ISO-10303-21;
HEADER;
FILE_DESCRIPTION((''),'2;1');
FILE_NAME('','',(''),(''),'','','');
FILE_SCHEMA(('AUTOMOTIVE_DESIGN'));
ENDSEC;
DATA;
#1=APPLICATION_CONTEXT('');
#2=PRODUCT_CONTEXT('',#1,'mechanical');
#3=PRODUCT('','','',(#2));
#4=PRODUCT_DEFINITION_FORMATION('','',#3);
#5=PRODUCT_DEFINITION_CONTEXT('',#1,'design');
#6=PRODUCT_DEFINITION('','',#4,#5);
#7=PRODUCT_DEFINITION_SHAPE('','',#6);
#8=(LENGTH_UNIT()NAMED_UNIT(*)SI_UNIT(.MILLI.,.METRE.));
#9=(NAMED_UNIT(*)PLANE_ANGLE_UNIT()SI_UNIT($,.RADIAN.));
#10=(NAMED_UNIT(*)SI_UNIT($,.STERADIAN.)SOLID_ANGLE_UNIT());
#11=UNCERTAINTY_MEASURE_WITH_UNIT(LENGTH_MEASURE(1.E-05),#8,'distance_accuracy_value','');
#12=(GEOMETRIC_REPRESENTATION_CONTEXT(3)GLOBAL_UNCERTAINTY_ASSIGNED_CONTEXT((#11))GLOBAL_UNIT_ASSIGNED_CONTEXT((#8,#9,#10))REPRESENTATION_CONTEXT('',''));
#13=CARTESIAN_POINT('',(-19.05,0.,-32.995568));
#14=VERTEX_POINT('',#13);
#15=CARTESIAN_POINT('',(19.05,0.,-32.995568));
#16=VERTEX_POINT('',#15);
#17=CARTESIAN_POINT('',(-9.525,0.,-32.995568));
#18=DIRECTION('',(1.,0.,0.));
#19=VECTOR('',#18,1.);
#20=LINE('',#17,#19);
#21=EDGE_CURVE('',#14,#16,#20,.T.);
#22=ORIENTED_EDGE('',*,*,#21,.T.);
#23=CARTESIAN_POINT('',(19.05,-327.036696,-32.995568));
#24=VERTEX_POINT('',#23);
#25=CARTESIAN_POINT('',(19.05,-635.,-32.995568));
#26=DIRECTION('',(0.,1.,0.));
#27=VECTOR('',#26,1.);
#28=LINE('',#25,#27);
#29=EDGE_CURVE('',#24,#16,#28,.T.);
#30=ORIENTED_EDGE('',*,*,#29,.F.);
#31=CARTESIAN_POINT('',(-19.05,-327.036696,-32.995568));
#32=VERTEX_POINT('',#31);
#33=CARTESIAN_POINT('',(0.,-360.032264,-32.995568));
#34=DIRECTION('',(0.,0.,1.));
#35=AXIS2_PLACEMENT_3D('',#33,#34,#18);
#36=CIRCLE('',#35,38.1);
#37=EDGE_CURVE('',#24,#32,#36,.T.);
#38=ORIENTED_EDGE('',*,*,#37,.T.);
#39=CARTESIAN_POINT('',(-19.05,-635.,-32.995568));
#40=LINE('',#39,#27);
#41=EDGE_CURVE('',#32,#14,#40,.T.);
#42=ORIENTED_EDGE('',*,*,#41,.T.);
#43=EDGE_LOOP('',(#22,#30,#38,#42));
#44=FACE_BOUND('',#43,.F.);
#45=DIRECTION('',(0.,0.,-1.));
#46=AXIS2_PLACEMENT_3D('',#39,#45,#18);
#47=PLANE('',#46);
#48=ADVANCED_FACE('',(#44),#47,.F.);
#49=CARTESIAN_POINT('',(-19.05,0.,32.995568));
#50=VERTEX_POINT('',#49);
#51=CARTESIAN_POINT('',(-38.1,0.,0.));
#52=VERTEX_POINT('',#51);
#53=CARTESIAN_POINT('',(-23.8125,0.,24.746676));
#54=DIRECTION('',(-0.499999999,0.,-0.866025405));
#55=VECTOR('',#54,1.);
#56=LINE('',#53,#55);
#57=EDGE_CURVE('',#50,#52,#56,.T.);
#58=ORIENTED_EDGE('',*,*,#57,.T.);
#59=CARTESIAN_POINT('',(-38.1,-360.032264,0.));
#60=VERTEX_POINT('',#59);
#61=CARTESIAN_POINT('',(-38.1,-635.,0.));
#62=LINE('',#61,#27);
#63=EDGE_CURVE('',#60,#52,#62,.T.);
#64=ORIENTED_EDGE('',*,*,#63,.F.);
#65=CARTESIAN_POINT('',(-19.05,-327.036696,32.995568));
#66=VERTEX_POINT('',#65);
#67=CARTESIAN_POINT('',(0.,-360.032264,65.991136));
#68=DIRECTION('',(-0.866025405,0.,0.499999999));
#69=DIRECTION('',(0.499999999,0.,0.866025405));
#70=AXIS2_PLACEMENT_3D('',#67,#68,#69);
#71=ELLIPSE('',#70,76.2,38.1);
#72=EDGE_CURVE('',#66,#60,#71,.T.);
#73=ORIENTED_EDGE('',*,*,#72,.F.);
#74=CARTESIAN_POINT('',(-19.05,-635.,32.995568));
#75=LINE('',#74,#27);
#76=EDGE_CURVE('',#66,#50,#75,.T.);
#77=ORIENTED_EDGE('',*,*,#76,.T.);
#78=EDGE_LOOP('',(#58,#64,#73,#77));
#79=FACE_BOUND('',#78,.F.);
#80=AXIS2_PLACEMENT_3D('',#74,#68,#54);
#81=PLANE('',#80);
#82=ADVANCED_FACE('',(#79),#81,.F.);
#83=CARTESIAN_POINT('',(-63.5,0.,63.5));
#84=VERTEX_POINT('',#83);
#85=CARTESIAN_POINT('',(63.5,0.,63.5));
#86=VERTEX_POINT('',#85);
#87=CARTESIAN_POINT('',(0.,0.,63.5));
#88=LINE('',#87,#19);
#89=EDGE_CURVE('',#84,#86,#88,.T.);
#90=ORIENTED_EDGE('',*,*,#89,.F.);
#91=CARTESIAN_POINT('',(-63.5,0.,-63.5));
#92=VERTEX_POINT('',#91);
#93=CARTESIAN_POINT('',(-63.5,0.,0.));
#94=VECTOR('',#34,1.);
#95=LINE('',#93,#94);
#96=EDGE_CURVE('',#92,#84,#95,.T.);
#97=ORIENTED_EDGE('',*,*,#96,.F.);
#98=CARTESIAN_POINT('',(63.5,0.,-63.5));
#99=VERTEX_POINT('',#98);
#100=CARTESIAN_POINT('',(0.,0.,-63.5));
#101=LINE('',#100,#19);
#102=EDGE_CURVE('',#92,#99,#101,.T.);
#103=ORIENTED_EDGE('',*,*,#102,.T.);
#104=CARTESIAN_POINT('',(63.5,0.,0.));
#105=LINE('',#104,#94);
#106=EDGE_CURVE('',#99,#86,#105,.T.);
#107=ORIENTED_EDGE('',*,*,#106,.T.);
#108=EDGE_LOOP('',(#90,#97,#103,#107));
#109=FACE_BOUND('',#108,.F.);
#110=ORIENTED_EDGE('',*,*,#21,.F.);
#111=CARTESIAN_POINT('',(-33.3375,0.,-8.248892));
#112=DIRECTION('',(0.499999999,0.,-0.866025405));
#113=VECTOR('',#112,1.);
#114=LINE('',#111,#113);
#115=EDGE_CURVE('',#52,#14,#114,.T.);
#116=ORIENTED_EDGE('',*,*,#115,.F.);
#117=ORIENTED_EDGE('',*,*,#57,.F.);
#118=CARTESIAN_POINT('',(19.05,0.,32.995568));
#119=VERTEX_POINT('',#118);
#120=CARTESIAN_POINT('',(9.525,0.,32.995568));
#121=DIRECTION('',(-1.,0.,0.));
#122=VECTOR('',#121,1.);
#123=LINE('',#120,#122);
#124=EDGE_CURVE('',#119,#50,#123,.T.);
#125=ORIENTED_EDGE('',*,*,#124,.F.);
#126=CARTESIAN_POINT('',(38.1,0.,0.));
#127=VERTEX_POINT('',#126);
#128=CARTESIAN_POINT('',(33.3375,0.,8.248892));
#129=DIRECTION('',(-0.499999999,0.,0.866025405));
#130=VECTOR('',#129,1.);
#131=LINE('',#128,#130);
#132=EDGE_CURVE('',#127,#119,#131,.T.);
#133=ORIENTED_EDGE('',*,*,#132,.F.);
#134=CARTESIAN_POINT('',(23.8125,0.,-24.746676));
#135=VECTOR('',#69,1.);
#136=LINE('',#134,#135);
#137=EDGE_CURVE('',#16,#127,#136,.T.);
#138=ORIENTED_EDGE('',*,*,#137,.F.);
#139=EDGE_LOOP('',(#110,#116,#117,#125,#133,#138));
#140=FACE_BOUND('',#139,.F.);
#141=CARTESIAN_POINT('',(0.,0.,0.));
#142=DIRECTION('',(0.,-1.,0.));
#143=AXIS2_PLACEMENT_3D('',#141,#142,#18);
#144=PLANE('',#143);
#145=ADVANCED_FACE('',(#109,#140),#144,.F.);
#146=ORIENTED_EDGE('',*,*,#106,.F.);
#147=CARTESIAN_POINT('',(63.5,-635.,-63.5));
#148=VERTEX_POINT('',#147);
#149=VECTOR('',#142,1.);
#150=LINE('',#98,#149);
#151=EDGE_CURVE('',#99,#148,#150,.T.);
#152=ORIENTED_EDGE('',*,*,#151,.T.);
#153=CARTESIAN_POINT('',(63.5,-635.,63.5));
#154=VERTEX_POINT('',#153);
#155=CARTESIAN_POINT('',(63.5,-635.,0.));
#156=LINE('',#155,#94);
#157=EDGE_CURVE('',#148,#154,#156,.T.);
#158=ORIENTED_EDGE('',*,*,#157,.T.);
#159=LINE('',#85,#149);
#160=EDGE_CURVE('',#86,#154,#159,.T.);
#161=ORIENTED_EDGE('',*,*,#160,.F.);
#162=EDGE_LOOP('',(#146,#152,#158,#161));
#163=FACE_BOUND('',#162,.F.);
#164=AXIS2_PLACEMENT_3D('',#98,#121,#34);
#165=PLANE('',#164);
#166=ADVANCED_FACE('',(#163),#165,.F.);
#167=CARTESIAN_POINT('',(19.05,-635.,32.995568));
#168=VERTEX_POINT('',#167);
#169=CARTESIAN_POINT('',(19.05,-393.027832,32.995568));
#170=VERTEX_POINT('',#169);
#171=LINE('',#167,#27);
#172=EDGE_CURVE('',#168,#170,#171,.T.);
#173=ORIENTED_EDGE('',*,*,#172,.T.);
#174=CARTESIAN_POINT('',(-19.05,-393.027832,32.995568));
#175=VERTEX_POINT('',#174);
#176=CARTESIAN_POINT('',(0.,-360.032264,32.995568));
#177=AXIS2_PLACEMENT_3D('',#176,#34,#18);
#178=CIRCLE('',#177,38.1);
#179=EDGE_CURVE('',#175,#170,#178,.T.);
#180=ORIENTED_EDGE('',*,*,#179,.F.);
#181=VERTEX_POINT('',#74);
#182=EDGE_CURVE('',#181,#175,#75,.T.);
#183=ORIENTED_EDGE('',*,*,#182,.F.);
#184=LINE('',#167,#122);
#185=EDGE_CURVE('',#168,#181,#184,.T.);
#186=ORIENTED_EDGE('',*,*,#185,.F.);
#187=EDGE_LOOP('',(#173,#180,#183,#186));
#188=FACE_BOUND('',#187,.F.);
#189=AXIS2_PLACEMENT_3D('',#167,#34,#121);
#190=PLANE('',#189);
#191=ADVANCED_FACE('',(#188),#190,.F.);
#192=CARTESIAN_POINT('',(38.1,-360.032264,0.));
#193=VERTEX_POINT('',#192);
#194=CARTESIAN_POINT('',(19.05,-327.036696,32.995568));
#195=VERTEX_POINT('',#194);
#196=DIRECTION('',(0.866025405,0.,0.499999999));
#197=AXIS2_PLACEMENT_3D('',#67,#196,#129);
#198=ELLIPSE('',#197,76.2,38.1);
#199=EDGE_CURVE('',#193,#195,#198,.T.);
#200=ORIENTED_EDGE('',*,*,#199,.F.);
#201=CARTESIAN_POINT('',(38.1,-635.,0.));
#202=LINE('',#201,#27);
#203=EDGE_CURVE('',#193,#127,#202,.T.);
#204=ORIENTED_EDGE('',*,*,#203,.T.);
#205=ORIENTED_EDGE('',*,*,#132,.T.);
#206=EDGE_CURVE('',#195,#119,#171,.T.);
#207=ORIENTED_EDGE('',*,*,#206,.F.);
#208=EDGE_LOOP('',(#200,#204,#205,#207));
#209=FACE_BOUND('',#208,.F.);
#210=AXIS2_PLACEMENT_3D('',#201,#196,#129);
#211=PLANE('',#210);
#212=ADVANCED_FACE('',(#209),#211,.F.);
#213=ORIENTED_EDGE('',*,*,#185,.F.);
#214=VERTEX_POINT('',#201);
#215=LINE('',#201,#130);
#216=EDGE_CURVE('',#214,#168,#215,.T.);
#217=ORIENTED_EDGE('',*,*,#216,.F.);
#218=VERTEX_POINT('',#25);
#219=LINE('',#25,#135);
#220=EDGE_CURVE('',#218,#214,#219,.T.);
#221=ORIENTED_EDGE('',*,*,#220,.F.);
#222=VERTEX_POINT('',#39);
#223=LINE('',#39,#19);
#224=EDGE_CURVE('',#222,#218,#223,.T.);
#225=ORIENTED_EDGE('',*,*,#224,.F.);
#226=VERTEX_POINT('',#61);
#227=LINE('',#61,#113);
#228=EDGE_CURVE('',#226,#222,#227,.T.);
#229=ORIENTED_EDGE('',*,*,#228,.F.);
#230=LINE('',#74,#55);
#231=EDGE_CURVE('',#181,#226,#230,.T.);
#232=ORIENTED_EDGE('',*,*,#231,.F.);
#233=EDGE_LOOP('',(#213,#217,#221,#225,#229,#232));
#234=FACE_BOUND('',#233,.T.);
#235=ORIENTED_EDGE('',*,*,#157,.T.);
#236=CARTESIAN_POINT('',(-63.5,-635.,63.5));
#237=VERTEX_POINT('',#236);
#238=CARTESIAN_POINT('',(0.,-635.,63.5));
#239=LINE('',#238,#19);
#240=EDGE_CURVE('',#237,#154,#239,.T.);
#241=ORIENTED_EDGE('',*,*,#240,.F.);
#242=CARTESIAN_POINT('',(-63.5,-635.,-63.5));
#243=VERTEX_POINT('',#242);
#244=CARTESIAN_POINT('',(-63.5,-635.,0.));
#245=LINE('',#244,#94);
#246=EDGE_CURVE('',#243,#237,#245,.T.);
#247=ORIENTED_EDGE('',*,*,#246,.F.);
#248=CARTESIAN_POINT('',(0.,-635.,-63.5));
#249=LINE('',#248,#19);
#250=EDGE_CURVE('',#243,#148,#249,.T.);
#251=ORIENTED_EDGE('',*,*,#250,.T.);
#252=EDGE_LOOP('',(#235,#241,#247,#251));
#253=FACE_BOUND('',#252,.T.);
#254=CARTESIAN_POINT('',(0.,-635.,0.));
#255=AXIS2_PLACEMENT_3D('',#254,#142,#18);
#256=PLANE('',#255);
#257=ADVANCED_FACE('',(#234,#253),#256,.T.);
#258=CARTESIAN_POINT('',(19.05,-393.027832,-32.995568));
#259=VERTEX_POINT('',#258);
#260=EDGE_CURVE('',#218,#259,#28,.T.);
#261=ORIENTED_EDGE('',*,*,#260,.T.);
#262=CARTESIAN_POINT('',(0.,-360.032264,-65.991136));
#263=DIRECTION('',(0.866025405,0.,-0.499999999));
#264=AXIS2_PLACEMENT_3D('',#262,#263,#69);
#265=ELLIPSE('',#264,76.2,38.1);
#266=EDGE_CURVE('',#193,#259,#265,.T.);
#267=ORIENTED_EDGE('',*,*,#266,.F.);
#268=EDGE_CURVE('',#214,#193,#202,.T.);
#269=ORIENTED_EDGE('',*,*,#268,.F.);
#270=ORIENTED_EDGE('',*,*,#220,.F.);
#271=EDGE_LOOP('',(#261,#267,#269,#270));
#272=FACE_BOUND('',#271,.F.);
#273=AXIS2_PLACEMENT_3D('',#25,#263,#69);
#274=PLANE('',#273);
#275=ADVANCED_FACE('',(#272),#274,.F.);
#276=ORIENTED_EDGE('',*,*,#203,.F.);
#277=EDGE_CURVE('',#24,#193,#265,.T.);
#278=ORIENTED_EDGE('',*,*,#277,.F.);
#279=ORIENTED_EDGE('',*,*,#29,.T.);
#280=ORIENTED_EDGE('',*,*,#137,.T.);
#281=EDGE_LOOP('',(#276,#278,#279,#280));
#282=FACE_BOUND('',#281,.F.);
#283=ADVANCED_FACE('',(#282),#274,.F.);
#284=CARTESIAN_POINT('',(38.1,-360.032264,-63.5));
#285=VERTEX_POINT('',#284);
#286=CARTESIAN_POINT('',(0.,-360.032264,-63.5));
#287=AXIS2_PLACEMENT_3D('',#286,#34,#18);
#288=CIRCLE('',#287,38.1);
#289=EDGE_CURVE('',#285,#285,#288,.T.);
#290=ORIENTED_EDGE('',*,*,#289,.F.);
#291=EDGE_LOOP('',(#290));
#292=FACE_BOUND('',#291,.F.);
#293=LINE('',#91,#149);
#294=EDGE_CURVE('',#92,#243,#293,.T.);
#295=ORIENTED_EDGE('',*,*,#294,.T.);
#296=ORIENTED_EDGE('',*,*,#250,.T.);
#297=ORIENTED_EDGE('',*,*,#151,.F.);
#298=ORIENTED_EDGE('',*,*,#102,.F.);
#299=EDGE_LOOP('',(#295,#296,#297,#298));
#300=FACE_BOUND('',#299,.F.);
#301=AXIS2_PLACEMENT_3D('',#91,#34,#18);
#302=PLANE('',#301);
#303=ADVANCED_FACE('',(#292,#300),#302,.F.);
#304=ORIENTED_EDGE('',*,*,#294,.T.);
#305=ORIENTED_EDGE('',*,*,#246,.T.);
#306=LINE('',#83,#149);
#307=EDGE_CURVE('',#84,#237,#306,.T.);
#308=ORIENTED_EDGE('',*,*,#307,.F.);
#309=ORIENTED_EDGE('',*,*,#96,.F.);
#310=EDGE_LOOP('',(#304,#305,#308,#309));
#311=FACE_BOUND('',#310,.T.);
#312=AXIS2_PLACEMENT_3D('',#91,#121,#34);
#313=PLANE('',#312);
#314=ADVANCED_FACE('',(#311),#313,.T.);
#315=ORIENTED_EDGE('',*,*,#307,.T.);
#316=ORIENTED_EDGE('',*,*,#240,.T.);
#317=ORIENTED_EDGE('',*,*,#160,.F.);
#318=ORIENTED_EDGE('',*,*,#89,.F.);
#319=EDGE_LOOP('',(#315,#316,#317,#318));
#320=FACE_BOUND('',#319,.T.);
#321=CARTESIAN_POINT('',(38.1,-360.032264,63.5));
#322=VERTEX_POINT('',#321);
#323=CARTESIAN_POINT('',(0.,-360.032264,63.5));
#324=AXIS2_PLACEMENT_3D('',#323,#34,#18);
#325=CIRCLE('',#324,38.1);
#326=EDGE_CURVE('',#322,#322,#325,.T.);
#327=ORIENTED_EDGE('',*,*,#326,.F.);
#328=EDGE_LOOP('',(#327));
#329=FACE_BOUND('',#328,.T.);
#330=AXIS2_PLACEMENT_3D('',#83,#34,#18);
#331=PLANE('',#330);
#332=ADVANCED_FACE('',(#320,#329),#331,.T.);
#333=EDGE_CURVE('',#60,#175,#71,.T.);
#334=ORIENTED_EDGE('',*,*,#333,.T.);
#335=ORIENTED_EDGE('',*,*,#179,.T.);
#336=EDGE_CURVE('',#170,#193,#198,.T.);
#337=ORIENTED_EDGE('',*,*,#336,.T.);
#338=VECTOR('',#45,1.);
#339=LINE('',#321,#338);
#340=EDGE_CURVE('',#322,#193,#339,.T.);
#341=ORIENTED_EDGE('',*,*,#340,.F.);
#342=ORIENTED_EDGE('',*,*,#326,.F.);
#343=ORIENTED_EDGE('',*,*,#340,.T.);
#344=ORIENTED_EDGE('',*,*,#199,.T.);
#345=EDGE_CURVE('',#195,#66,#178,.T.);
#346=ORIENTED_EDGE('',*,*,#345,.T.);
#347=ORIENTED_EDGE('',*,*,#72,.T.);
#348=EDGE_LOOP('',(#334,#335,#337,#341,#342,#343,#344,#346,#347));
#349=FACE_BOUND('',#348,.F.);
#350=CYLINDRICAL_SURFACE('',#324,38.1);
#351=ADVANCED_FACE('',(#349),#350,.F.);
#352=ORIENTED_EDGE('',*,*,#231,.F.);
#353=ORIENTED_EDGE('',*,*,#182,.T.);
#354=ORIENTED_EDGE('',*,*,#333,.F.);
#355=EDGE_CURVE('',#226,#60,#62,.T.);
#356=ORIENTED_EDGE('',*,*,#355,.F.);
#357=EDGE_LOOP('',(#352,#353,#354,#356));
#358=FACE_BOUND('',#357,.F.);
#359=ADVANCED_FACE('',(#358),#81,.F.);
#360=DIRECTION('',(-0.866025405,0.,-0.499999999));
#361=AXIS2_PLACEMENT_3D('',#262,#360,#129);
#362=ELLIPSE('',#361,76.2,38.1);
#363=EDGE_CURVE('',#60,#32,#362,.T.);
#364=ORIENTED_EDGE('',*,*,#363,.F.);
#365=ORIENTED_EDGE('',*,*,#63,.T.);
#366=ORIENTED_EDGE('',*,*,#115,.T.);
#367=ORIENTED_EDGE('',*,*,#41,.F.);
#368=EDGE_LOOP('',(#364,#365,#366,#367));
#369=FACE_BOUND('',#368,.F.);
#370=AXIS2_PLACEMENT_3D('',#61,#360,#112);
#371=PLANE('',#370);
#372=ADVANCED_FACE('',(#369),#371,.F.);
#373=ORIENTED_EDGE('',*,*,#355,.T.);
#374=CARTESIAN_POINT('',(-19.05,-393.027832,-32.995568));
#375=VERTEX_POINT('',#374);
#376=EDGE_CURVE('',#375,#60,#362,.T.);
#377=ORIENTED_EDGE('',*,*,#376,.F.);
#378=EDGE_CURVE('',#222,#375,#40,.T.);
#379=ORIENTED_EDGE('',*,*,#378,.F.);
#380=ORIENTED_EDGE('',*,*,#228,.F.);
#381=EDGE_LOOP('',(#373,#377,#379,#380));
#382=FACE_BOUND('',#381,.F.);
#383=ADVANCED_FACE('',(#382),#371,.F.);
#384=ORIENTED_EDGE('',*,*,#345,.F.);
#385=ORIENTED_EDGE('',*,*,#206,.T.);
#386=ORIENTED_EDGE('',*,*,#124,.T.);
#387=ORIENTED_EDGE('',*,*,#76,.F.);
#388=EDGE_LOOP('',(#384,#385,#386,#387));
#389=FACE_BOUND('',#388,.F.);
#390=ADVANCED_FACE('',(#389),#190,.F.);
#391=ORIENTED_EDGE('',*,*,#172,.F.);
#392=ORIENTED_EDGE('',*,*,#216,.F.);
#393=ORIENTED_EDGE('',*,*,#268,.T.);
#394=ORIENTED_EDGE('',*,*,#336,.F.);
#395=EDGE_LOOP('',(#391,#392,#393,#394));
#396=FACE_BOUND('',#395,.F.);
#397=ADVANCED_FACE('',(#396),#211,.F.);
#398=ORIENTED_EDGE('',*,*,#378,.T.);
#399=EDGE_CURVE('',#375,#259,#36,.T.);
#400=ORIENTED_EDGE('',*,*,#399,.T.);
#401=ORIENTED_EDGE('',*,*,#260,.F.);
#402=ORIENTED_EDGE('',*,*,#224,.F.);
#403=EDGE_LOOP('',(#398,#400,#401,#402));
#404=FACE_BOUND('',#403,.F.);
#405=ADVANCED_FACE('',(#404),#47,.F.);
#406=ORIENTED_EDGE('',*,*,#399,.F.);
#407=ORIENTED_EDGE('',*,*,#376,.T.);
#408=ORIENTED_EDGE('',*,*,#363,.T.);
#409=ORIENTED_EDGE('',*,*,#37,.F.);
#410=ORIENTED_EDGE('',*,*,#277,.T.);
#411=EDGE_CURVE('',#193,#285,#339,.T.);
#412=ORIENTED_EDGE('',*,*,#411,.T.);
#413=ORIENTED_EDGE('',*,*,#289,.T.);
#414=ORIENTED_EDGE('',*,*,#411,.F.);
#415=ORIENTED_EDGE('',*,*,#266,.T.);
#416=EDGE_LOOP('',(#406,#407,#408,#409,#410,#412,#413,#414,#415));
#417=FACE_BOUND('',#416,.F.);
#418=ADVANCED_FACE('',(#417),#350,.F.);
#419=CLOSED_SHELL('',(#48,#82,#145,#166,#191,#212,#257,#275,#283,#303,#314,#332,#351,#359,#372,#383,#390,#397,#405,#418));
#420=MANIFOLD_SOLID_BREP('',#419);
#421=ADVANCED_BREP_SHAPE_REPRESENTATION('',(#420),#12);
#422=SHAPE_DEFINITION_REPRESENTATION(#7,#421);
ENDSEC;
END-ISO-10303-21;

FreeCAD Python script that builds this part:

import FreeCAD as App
import Part
import Sketcher
Q = App.Units.Quantity


def add_polygon(sketch, points):
    """Adds a closed chain of lines whose ends are joined by coincident constraints."""
    first, n = sketch.GeometryCount, len(points)
    for a, b in zip(points, points[1:] + points[:1]):
        sketch.addGeometry(Part.LineSegment(App.Vector(*a, 0), App.Vector(*b, 0)), False)
    for i in range(n):
        sketch.addConstraint(Sketcher.Constraint("Coincident", first + i, 2, first + (i + 1) % n, 1))

doc = App.newDocument("Part")
body = doc.addObject("PartDesign::Body", "Body")

# Sketch on XZ plane
sketch1 = doc.addObject("Sketcher::SketchObject", "Sketch")
body.addObject(sketch1)
sketch1.AttachmentSupport = (doc.XZ_Plane, [""])
sketch1.MapMode = "FlatFace"
add_polygon(sketch1, [(-64, 64), (-64, -64), (64, -64), (64, 64)])  # lines 0-3
sketch1.addConstraint([
    Sketcher.Constraint("Vertical", 0),
    Sketcher.Constraint("Horizontal", 1),
    Sketcher.Constraint("Vertical", 2),
    Sketcher.Constraint("Horizontal", 3),
    Sketcher.Constraint("Symmetric", 0, 2, 2, 2, -1, 1),
    Sketcher.Constraint("Equal", 3, 0),
    Sketcher.Constraint("DistanceX", 1, 1, 1, 2, Q("5 in")),
])
pad1 = doc.addObject("PartDesign::Pad", "Pad")
body.addObject(pad1)
pad1.Profile = sketch1
pad1.Length = Q("25 in")

# Sketch on XY plane
sketch2 = doc.addObject("Sketcher::SketchObject", "Sketch001")
body.addObject(sketch2)
sketch2.AttachmentSupport = (doc.XY_Plane, [""])
sketch2.MapMode = "FlatFace"
sketch2.AttachmentOffset = App.Placement(App.Vector(0, 0, 2.5 * 25.4), App.Rotation())
sketch2.addGeometry(Part.Circle(App.Vector(0, -360, 0), App.Vector(0, 0, 1), 38), False)
sketch2.addConstraint([
    Sketcher.Constraint("PointOnObject", 0, 3, -2),
    Sketcher.Constraint("Diameter", 0, Q("3 in")),
    Sketcher.Constraint("DistanceY", 0, 3, -1, 1, Q("360.032264 mm")),
])
pocket1 = doc.addObject("PartDesign::Pocket", "Pocket")
body.addObject(pocket1)
pocket1.Profile = sketch2
pocket1.Type = "ThroughAll"

# Sketch on XZ plane
sketch3 = doc.addObject("Sketcher::SketchObject", "Sketch002")
body.addObject(sketch3)
sketch3.AttachmentSupport = (doc.XZ_Plane, [""])
sketch3.MapMode = "FlatFace"
sketch3.AttachmentOffset = App.Placement(App.Vector(0, 0, 25 * 25.4), App.Rotation())
add_polygon(sketch3, [(19, -33), (38, 0), (19, 33), (-19, 33), (-38, 0), (-19, -33)])  # lines 0-5
sketch3.addConstraint([
    Sketcher.Constraint("Horizontal", 2),
    Sketcher.Constraint("Horizontal", 5),
    Sketcher.Constraint("Symmetric", 0, 2, 3, 2, -1, 1),
    Sketcher.Constraint("Symmetric", 1, 2, 4, 2, -1, 1),
    Sketcher.Constraint("PointOnObject", 0, 2, -1),
    Sketcher.Constraint("Parallel", 0, 3),
    Sketcher.Constraint("Vertical", 2, 2, 4, 2),
    Sketcher.Constraint("DistanceX", 2, 2, 2, 1, Q("1.5 in")),
    Sketcher.Constraint("Angle", 0, Q("60 deg")),
    Sketcher.Constraint("DistanceX", 3, 2, 0, 2, Q("3 in")),
])
pocket2 = doc.addObject("PartDesign::Pocket", "Pocket001")
body.addObject(pocket2)
pocket2.Profile = sketch3
pocket2.Type = "ThroughAll"

doc.recompute()
